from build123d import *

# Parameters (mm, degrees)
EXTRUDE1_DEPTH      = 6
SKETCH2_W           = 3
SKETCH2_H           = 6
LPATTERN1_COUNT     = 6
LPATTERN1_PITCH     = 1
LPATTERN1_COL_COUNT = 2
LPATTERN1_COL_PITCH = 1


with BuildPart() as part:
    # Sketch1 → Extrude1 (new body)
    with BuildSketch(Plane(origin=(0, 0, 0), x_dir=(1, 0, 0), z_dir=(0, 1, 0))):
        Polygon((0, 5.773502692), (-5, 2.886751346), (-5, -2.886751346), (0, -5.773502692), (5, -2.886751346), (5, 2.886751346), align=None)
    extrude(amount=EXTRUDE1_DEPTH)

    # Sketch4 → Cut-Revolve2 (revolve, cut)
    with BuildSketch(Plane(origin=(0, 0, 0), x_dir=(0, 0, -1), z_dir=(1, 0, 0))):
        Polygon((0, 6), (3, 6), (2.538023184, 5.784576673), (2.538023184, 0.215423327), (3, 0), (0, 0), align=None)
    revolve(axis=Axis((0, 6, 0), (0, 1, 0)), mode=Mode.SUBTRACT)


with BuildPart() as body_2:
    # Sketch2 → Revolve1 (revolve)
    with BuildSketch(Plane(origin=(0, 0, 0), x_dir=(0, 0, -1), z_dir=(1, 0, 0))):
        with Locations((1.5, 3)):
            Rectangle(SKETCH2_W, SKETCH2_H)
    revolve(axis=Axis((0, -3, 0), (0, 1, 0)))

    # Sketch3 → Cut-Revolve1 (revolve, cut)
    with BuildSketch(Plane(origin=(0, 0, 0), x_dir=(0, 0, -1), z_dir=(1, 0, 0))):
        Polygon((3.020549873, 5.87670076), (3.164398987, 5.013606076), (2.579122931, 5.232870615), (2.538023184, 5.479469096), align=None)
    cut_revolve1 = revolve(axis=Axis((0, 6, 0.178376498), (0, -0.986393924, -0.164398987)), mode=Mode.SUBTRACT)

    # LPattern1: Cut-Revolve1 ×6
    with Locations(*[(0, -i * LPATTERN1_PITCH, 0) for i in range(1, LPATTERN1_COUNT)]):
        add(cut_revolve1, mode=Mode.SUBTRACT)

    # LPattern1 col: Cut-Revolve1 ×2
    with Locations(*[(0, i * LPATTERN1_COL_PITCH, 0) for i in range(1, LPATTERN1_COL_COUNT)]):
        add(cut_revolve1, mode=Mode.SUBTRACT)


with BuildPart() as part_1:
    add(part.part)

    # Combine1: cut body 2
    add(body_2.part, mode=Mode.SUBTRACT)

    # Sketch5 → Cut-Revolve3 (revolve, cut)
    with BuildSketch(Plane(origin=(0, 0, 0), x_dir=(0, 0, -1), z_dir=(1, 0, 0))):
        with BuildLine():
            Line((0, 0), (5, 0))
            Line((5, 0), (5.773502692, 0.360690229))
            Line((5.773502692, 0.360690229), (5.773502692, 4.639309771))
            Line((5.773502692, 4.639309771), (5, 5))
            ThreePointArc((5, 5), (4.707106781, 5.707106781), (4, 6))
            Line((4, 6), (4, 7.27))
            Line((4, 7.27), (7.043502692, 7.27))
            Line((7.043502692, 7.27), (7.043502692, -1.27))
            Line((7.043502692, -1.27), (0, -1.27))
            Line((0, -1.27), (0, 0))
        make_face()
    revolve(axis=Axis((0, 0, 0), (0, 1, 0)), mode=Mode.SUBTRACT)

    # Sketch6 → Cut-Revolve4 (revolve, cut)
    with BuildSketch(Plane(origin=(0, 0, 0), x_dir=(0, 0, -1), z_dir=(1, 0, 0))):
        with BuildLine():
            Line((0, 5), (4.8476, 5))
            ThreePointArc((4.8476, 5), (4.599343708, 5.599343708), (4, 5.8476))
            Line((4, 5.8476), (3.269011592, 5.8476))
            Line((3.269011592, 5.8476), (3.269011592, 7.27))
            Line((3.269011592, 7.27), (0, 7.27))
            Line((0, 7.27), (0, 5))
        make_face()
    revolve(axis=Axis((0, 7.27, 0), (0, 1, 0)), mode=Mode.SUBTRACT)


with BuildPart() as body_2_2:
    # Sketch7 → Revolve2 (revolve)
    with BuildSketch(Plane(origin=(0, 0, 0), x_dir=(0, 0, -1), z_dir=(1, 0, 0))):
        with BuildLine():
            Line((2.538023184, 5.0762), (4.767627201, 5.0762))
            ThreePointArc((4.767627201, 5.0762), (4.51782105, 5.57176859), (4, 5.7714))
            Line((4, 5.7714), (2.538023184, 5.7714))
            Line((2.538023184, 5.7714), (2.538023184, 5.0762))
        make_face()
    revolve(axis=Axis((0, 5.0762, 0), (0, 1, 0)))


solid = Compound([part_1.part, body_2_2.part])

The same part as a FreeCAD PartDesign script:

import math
import FreeCAD as App
import Part
import Sketcher
Q = App.Units.Quantity

doc = App.newDocument("Part")
body = doc.addObject("PartDesign::Body", "Body")

# Sketch on XZ plane
sketch1 = body.newObject("Sketcher::SketchObject", "Sketch")
sketch1.AttachmentSupport = (doc.getObject("XZ_Plane"), [""])
sketch1.MapMode = "FlatFace"
sketch1.addGeometry(Part.LineSegment(App.Vector(0, -6, 0), App.Vector(-5, -3, 0)), False)
sketch1.addGeometry(Part.LineSegment(App.Vector(-5, -3, 0), App.Vector(-5, 3, 0)), False)
sketch1.addGeometry(Part.LineSegment(App.Vector(-5, 3, 0), App.Vector(0, 6, 0)), False)
sketch1.addGeometry(Part.LineSegment(App.Vector(0, 6, 0), App.Vector(5, 3, 0)), False)
sketch1.addGeometry(Part.LineSegment(App.Vector(5, 3, 0), App.Vector(5, -3, 0)), False)
sketch1.addGeometry(Part.LineSegment(App.Vector(5, -3, 0), App.Vector(0, -6, 0)), False)
sketch1.addConstraint(Sketcher.Constraint("Coincident", 0, 2, 1, 1))
sketch1.addConstraint(Sketcher.Constraint("Coincident", 1, 2, 2, 1))
sketch1.addConstraint(Sketcher.Constraint("Coincident", 2, 2, 3, 1))
sketch1.addConstraint(Sketcher.Constraint("Coincident", 3, 2, 4, 1))
sketch1.addConstraint(Sketcher.Constraint("Coincident", 4, 2, 5, 1))
sketch1.addConstraint(Sketcher.Constraint("Coincident", 5, 2, 0, 1))
sketch1.addConstraint(Sketcher.Constraint("Vertical", 1))
sketch1.addConstraint(Sketcher.Constraint("Vertical", 4))
sketch1.addConstraint(Sketcher.Constraint("Symmetric", 0, 2, 3, 2, -1, 1))
sketch1.addConstraint(Sketcher.Constraint("Symmetric", 2, 2, 5, 2, -1, 1))
sketch1.addConstraint(Sketcher.Constraint("PointOnObject", 2, 2, -2))
sketch1.addConstraint(Sketcher.Constraint("Parallel", 2, 5))
sketch1.addConstraint(Sketcher.Constraint("Horizontal", 1, 2, 3, 2))
sketch1.addConstraint(Sketcher.Constraint("Angle", 0, Q("150 deg")))
sketch1.addConstraint(Sketcher.Constraint("DistanceX", 0, 2, -1, 1, 5.0))
sketch1.addConstraint(Sketcher.Constraint("DistanceY", 1, 1, 1, 2, 5.773503))
pad1 = body.newObject("PartDesign::Pad", "Pad")
pad1.Profile = sketch1
pad1.Length = 6
pad1.Reversed = True

# Sketch on YZ plane
sketch2 = body.newObject("Sketcher::SketchObject", "Sketch001")
sketch2.AttachmentSupport = (doc.getObject("YZ_Plane"), [""])
sketch2.MapMode = "FlatFace"
sketch2.addGeometry(Part.LineSegment(App.Vector(6, -3, 0), App.Vector(6, 0, 0)), False)
sketch2.addGeometry(Part.LineSegment(App.Vector(6, 0, 0), App.Vector(0, 0, 0)), False)
sketch2.addGeometry(Part.LineSegment(App.Vector(0, 0, 0), App.Vector(0, -3, 0)), False)
sketch2.addGeometry(Part.LineSegment(App.Vector(0, -3, 0), App.Vector(0.2, -2.5, 0)), False)
sketch2.addGeometry(Part.LineSegment(App.Vector(0.2, -2.5, 0), App.Vector(5.8, -2.5, 0)), False)
sketch2.addGeometry(Part.LineSegment(App.Vector(5.8, -2.5, 0), App.Vector(6, -3, 0)), False)
sketch2.addConstraint(Sketcher.Constraint("Coincident", 0, 2, 1, 1))
sketch2.addConstraint(Sketcher.Constraint("Coincident", 1, 2, 2, 1))
sketch2.addConstraint(Sketcher.Constraint("Coincident", 2, 2, 3, 1))
sketch2.addConstraint(Sketcher.Constraint("Coincident", 3, 2, 4, 1))
sketch2.addConstraint(Sketcher.Constraint("Coincident", 4, 2, 5, 1))
sketch2.addConstraint(Sketcher.Constraint("Coincident", 5, 2, 0, 1))
sketch2.addConstraint(Sketcher.Constraint("Vertical", 0))
sketch2.addConstraint(Sketcher.Constraint("Horizontal", 1))
sketch2.addConstraint(Sketcher.Constraint("Vertical", 2))
sketch2.addConstraint(Sketcher.Constraint("Horizontal", 4))
sketch2.addConstraint(Sketcher.Constraint("Coincident", 1, 2, -1, 1))
sketch2.addConstraint(Sketcher.Constraint("Horizontal", 2, 2, 5, 2))
sketch2.addConstraint(Sketcher.Constraint("Equal", 3, 5))
sketch2.addConstraint(Sketcher.Constraint("DistanceX", 1, 2, 1, 1, 6.0))
sketch2.addConstraint(Sketcher.Constraint("DistanceY", 0, 1, 0, 2, 3.0))
sketch2.addConstraint(Sketcher.Constraint("Angle", 3, Q("65 deg")))
sketch2.addConstraint(Sketcher.Constraint("DistanceX", 4, 1, 4, 2, 5.569153))
groove = body.newObject("PartDesign::Groove", "Groove")
groove.Profile = sketch2
groove.ReferenceAxis = (sketch2, ["H_Axis"])
groove.Angle = 360
body2 = doc.addObject("PartDesign::Body", "Body001")

# Sketch on YZ plane
sketch3 = body2.newObject("Sketcher::SketchObject", "Sketch002")
sketch3.AttachmentSupport = (doc.getObject("YZ_Plane001"), [""])
sketch3.MapMode = "FlatFace"
sketch3.addGeometry(Part.LineSegment(App.Vector(6, 0, 0), App.Vector(0, 0, 0)), False)
sketch3.addGeometry(Part.LineSegment(App.Vector(0, 0, 0), App.Vector(0, -3, 0)), False)
sketch3.addGeometry(Part.LineSegment(App.Vector(0, -3, 0), App.Vector(6, -3, 0)), False)
sketch3.addGeometry(Part.LineSegment(App.Vector(6, -3, 0), App.Vector(6, 0, 0)), False)
sketch3.addConstraint(Sketcher.Constraint("Coincident", 0, 2, 1, 1))
sketch3.addConstraint(Sketcher.Constraint("Coincident", 1, 2, 2, 1))
sketch3.addConstraint(Sketcher.Constraint("Coincident", 2, 2, 3, 1))
sketch3.addConstraint(Sketcher.Constraint("Coincident", 3, 2, 0, 1))
sketch3.addConstraint(Sketcher.Constraint("Horizontal", 0))
sketch3.addConstraint(Sketcher.Constraint("Vertical", 1))
sketch3.addConstraint(Sketcher.Constraint("Horizontal", 2))
sketch3.addConstraint(Sketcher.Constraint("Vertical", 3))
sketch3.addConstraint(Sketcher.Constraint("Coincident", 0, 2, -1, 1))
sketch3.addConstraint(Sketcher.Constraint("DistanceX", 0, 2, 0, 1, 6.0))
sketch3.addConstraint(Sketcher.Constraint("DistanceY", 1, 2, 1, 1, 3.0))
revolution = body2.newObject("PartDesign::Revolution", "Revolution")
revolution.Profile = sketch3
revolution.ReferenceAxis = (sketch3, ["H_Axis"])
revolution.Angle = 360

# Sketch on YZ plane
sketch4 = body2.newObject("Sketcher::SketchObject", "Sketch003")
sketch4.AttachmentSupport = (doc.getObject("YZ_Plane001"), [""])
sketch4.MapMode = "FlatFace"
sketch4.addGeometry(Part.LineSegment(App.Vector(5.01, -3.16, 0), App.Vector(5.88, -3.02, 0)), False)
sketch4.addGeometry(Part.LineSegment(App.Vector(5.88, -3.02, 0), App.Vector(5.48, -2.54, 0)), False)
sketch4.addGeometry(Part.LineSegment(App.Vector(5.48, -2.54, 0), App.Vector(5.23, -2.58, 0)), False)
sketch4.addGeometry(Part.LineSegment(App.Vector(5.23, -2.58, 0), App.Vector(5.01, -3.16, 0)), False)
sketch4.addGeometry(Part.LineSegment(App.Vector(5.36, 0.07, 0), App.Vector(4.5, -0.07, 0)), True)  # axis
sketch4.addConstraint(Sketcher.Constraint("Coincident", 0, 2, 1, 1))
sketch4.addConstraint(Sketcher.Constraint("Coincident", 1, 2, 2, 1))
sketch4.addConstraint(Sketcher.Constraint("Coincident", 2, 2, 3, 1))
sketch4.addConstraint(Sketcher.Constraint("Coincident", 3, 2, 0, 1))
sketch4.addConstraint(Sketcher.Constraint("Parallel", 0, 2))
sketch4.addConstraint(Sketcher.Constraint("Parallel", 2, 4))
sketch4.addConstraint(Sketcher.Constraint("Equal", 1, 3))
sketch4.addConstraint(Sketcher.Constraint("Equal", 0, 4))
sketch4.addConstraint(Sketcher.Constraint("Distance", 2, 0.25))
sketch4.addConstraint(Sketcher.Constraint("Distance", 0, 0.875))
sketch4.addConstraint(Sketcher.Constraint("Distance", 1, 0.625))
sketch4.addConstraint(Sketcher.Constraint("DistanceX", -1, 1, 0, 2, 5.876701))
sketch4.addConstraint(Sketcher.Constraint("DistanceY", 3, 2, -1, 1, 3.164399))
sketch4.addConstraint(Sketcher.Constraint("DistanceX", 2, 2, 1, 2, 0.246598))
sketch4.addConstraint(Sketcher.Constraint("DistanceY", 2, 2, 4, 2, 2.507198))
sketch4.addConstraint(Sketcher.Constraint("DistanceX", -1, 1, 4, 1, 5.361288))
groove2 = body2.newObject("PartDesign::Groove", "Groove001")
groove2.Profile = sketch4
groove2.ReferenceAxis = (sketch4, ["Axis0"])
groove2.Angle = 360
doc.recompute()

linearpattern = body2.newObject("PartDesign::LinearPattern", "LinearPattern")
linearpattern.Originals = [groove2]
linearpattern.Direction = (doc.getObject("Y_Axis001"), [""])
linearpattern.Mode = "offset"
linearpattern.Offset = 1
linearpattern.Occurrences = 6
linearpattern.Reversed = True
body2.Tip = linearpattern
doc.recompute()

linearpattern2 = body2.newObject("PartDesign::LinearPattern", "LinearPattern001")
linearpattern2.Originals = [groove2]
linearpattern2.Direction = (doc.getObject("Y_Axis001"), [""])
linearpattern2.Mode = "offset"
linearpattern2.Offset = 1
linearpattern2.Occurrences = 2
body2.Tip = linearpattern2
doc.recompute()

boolean = body.newObject("PartDesign::Boolean", "Boolean")
boolean.Type = "Cut"
boolean.addObjects([body2])

# Sketch on YZ plane
sketch5 = body.newObject("Sketcher::SketchObject", "Sketch004")
sketch5.AttachmentSupport = (doc.getObject("YZ_Plane"), [""])
sketch5.MapMode = "FlatFace"
sketch5.addGeometry(Part.LineSegment(App.Vector(0, -5, 0), App.Vector(0, 0, 0)), False)
sketch5.addGeometry(Part.LineSegment(App.Vector(0, 0, 0), App.Vector(-1.3, 0, 0)), False)
sketch5.addGeometry(Part.LineSegment(App.Vector(-1.3, 0, 0), App.Vector(-1.3, -7, 0)), False)
sketch5.addGeometry(Part.LineSegment(App.Vector(-1.3, -7, 0), App.Vector(7.3, -7, 0)), False)
sketch5.addGeometry(Part.LineSegment(App.Vector(7.3, -7, 0), App.Vector(7.3, -4, 0)), False)
sketch5.addGeometry(Part.LineSegment(App.Vector(7.3, -4, 0), App.Vector(6, -4, 0)), False)
sketch5.addGeometry(Part.ArcOfCircle(Part.Circle(App.Vector(5, -4, 0), App.Vector(0, 0, 1), 1), math.radians(-90), math.radians(0)), False)
sketch5.addGeometry(Part.LineSegment(App.Vector(5, -5, 0), App.Vector(4.6, -5.8, 0)), False)
sketch5.addGeometry(Part.LineSegment(App.Vector(4.6, -5.8, 0), App.Vector(0.4, -5.8, 0)), False)
sketch5.addGeometry(Part.LineSegment(App.Vector(0.4, -5.8, 0), App.Vector(0, -5, 0)), False)
sketch5.addConstraint(Sketcher.Constraint("Coincident", 0, 2, 1, 1))
sketch5.addConstraint(Sketcher.Constraint("Coincident", 1, 2, 2, 1))
sketch5.addConstraint(Sketcher.Constraint("Coincident", 2, 2, 3, 1))
sketch5.addConstraint(Sketcher.Constraint("Coincident", 3, 2, 4, 1))
sketch5.addConstraint(Sketcher.Constraint("Coincident", 4, 2, 5, 1))
sketch5.addConstraint(Sketcher.Constraint("Coincident", 5, 2, 6, 2))
sketch5.addConstraint(Sketcher.Constraint("Coincident", 6, 1, 7, 1))
sketch5.addConstraint(Sketcher.Constraint("Coincident", 7, 2, 8, 1))
sketch5.addConstraint(Sketcher.Constraint("Coincident", 8, 2, 9, 1))
sketch5.addConstraint(Sketcher.Constraint("Coincident", 9, 2, 0, 1))
sketch5.addConstraint(Sketcher.Constraint("Vertical", 0))
sketch5.addConstraint(Sketcher.Constraint("Horizontal", 1))
sketch5.addConstraint(Sketcher.Constraint("Vertical", 2))
sketch5.addConstraint(Sketcher.Constraint("Horizontal", 3))
sketch5.addConstraint(Sketcher.Constraint("Vertical", 4))
sketch5.addConstraint(Sketcher.Constraint("Horizontal", 5))
sketch5.addConstraint(Sketcher.Constraint("Horizontal", 8))
sketch5.addConstraint(Sketcher.Constraint("Coincident", 0, 2, -1, 1))
sketch5.addConstraint(Sketcher.Constraint("Horizontal", 6, 3, 4, 2))
sketch5.addConstraint(Sketcher.Constraint("Horizontal", 6, 1, 9, 2))
sketch5.addConstraint(Sketcher.Constraint("Equal", 1, 5))
sketch5.addConstraint(Sketcher.Constraint("Equal", 7, 9))
sketch5.addConstraint(Sketcher.Constraint("Radius", 6, 1.0))
sketch5.addConstraint(Sketcher.Constraint("DistanceY", 0, 1, 0, 2, 5.0))
sketch5.addConstraint(Sketcher.Constraint("Angle", 7, Q("-115 deg")))
sketch5.addConstraint(Sketcher.Constraint("DistanceX", -1, 1, 6, 3, 5.0))
sketch5.addConstraint(Sketcher.Constraint("DistanceX", -1, 1, 6, 1, 5.0))
sketch5.addConstraint(Sketcher.Constraint("DistanceX", 1, 2, 1, 1, 1.27))
sketch5.addConstraint(Sketcher.Constraint("DistanceY", 3, 2, 7, 2, 1.27))
sketch5.addConstraint(Sketcher.Constraint("DistanceX", 8, 2, 8, 1, 4.27862))
groove3 = body.newObject("PartDesign::Groove", "Groove002")
groove3.Profile = sketch5
groove3.ReferenceAxis = (sketch5, ["H_Axis"])
groove3.Angle = 360

# Sketch on YZ plane
sketch6 = body.newObject("Sketcher::SketchObject", "Sketch005")
sketch6.AttachmentSupport = (doc.getObject("YZ_Plane"), [""])
sketch6.MapMode = "FlatFace"
sketch6.addGeometry(Part.LineSegment(App.Vector(5, 0, 0), App.Vector(5, -4.8, 0)), False)
sketch6.addGeometry(Part.ArcOfCircle(Part.Circle(App.Vector(5, -4, 0), App.Vector(0, 0, 1), 0.8), math.radians(-90), math.radians(0)), False)
sketch6.addGeometry(Part.LineSegment(App.Vector(5.8, -4, 0), App.Vector(5.8, -3.3, 0)), False)
sketch6.addGeometry(Part.LineSegment(App.Vector(5.8, -3.3, 0), App.Vector(7.3, -3.3, 0)), False)
sketch6.addGeometry(Part.LineSegment(App.Vector(7.3, -3.3, 0), App.Vector(7.3, 0, 0)), False)
sketch6.addGeometry(Part.LineSegment(App.Vector(7.3, 0, 0), App.Vector(5, 0, 0)), False)
sketch6.addConstraint(Sketcher.Constraint("Coincident", 0, 2, 1, 1))
sketch6.addConstraint(Sketcher.Constraint("Tangent", 1, 2, 2, 1))
sketch6.addConstraint(Sketcher.Constraint("Coincident", 2, 2, 3, 1))
sketch6.addConstraint(Sketcher.Constraint("Coincident", 3, 2, 4, 1))
sketch6.addConstraint(Sketcher.Constraint("Coincident", 4, 2, 5, 1))
sketch6.addConstraint(Sketcher.Constraint("Coincident", 5, 2, 0, 1))
sketch6.addConstraint(Sketcher.Constraint("Vertical", 0))
sketch6.addConstraint(Sketcher.Constraint("Vertical", 2))
sketch6.addConstraint(Sketcher.Constraint("Horizontal", 3))
sketch6.addConstraint(Sketcher.Constraint("Vertical", 4))
sketch6.addConstraint(Sketcher.Constraint("Horizontal", 5))
sketch6.addConstraint(Sketcher.Constraint("PointOnObject", 4, 2, -1))
sketch6.addConstraint(Sketcher.Constraint("Vertical", 1, 3, 0, 2))
sketch6.addConstraint(Sketcher.Constraint("DistanceX", -1, 1, 1, 3, 5.0))
sketch6.addConstraint(Sketcher.Constraint("DistanceY", 1, 3, -1, 1, 4.0))
sketch6.addConstraint(Sketcher.Constraint("DistanceX", 5, 2, 5, 1, 2.27))
sketch6.addConstraint(Sketcher.Constraint("Radius", 1, 0.8476))
sketch6.addConstraint(Sketcher.Constraint("DistanceY", 2, 1, 2, 2, 0.730988))
groove4 = body.newObject("PartDesign::Groove", "Groove003")
groove4.Profile = sketch6
groove4.ReferenceAxis = (sketch6, ["H_Axis"])
groove4.Angle = 360
body3 = doc.addObject("PartDesign::Body", "Body002")

# Sketch on YZ plane
sketch7 = body3.newObject("Sketcher::SketchObject", "Sketch006")
sketch7.AttachmentSupport = (doc.getObject("YZ_Plane002"), [""])
sketch7.MapMode = "FlatFace"
sketch7.addGeometry(Part.LineSegment(App.Vector(5.1, -2.5, 0), App.Vector(5.1, -4.8, 0)), False)
sketch7.addGeometry(Part.ArcOfCircle(Part.Circle(App.Vector(5, -4, 0), App.Vector(0, 0, 1), 0.8), math.radians(-84), math.radians(0)), False)
sketch7.addGeometry(Part.LineSegment(App.Vector(5.8, -4, 0), App.Vector(5.8, -2.5, 0)), False)
sketch7.addGeometry(Part.LineSegment(App.Vector(5.8, -2.5, 0), App.Vector(5.1, -2.5, 0)), False)
sketch7.addConstraint(Sketcher.Constraint("Coincident", 0, 2, 1, 1))
sketch7.addConstraint(Sketcher.Constraint("Tangent", 1, 2, 2, 1))
sketch7.addConstraint(Sketcher.Constraint("Coincident", 2, 2, 3, 1))
sketch7.addConstraint(Sketcher.Constraint("Coincident", 3, 2, 0, 1))
sketch7.addConstraint(Sketcher.Constraint("Vertical", 0))
sketch7.addConstraint(Sketcher.Constraint("Vertical", 2))
sketch7.addConstraint(Sketcher.Constraint("Horizontal", 3))
sketch7.addConstraint(Sketcher.Constraint("DistanceX", -1, 1, 1, 3, 5.0))
sketch7.addConstraint(Sketcher.Constraint("DistanceY", 1, 3, -1, 1, 4.0))
sketch7.addConstraint(Sketcher.Constraint("Radius", 1, 0.7714))
sketch7.addConstraint(Sketcher.Constraint("DistanceX", 3, 2, 3, 1, 0.6952))
sketch7.addConstraint(Sketcher.Constraint("DistanceY", 0, 2, 0, 1, 2.229604))
revolution2 = body3.newObject("PartDesign::Revolution", "Revolution001")
revolution2.Profile = sketch7
revolution2.ReferenceAxis = (sketch7, ["H_Axis"])
revolution2.Angle = 360

doc.recompute()
